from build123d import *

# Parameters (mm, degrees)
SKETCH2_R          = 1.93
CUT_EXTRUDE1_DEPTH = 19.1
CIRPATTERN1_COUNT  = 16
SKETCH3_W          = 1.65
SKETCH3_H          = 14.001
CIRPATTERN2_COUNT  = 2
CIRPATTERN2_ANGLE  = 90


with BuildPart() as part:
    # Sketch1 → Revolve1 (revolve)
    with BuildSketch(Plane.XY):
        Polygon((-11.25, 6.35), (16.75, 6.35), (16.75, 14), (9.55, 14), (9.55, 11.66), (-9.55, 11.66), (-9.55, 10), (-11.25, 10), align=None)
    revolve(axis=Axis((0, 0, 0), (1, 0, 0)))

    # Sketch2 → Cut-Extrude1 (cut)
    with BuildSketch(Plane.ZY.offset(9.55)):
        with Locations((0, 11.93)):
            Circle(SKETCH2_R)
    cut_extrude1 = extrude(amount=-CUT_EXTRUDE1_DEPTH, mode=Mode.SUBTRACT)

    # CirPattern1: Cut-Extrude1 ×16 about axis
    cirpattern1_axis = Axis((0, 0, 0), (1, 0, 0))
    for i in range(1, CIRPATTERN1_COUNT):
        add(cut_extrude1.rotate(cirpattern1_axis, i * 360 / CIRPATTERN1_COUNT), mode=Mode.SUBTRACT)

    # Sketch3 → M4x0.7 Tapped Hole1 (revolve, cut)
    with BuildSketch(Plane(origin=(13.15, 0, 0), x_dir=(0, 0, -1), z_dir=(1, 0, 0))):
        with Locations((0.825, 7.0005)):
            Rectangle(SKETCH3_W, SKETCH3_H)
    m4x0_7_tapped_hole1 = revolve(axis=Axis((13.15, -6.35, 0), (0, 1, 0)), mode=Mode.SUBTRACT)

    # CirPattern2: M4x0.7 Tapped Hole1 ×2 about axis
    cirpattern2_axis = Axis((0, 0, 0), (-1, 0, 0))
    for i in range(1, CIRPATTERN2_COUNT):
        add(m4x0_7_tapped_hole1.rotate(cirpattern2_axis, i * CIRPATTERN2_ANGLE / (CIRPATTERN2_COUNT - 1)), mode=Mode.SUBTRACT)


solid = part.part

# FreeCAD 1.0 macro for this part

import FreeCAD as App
import Part
import Sketcher

V = App.Vector

doc = App.newDocument("Part")
body = doc.addObject("PartDesign::Body", "Body")

# Sketch on XY plane
sketch1 = body.newObject("Sketcher::SketchObject", "Sketch")
sketch1.AttachmentSupport = (doc.getObject("XY_Plane"), [""])
sketch1.MapMode = "FlatFace"
sketch1.addGeometry([
    Part.LineSegment(V(-11.2, 6.3, 0), V(16.8, 6.3, 0)),  # 0
    Part.LineSegment(V(16.8, 6.3, 0), V(16.8, 14, 0)),  # 1
    Part.LineSegment(V(16.8, 14, 0), V(9.6, 14, 0)),  # 2
    Part.LineSegment(V(9.6, 14, 0), V(9.6, 11.7, 0)),  # 3
    Part.LineSegment(V(9.6, 11.7, 0), V(-9.6, 11.7, 0)),  # 4
    Part.LineSegment(V(-9.6, 11.7, 0), V(-9.6, 10, 0)),  # 5
    Part.LineSegment(V(-9.6, 10, 0), V(-11.2, 10, 0)),  # 6
    Part.LineSegment(V(-11.2, 10, 0), V(-11.2, 6.3, 0)),  # 7
], False)
sketch1.addConstraint([
    Sketcher.Constraint("Coincident", 0, 2, 1, 1),
    Sketcher.Constraint("Coincident", 1, 2, 2, 1),
    Sketcher.Constraint("Coincident", 2, 2, 3, 1),
    Sketcher.Constraint("Coincident", 3, 2, 4, 1),
    Sketcher.Constraint("Coincident", 4, 2, 5, 1),
    Sketcher.Constraint("Coincident", 5, 2, 6, 1),
    Sketcher.Constraint("Coincident", 6, 2, 7, 1),
    Sketcher.Constraint("Coincident", 7, 2, 0, 1),
    Sketcher.Constraint("Horizontal", 0),
    Sketcher.Constraint("Vertical", 1),
    Sketcher.Constraint("Horizontal", 2),
    Sketcher.Constraint("Vertical", 3),
    Sketcher.Constraint("Horizontal", 4),
    Sketcher.Constraint("Vertical", 5),
    Sketcher.Constraint("Horizontal", 6),
    Sketcher.Constraint("Vertical", 7),
    Sketcher.Constraint("DistanceX", 0, 1, 0, 2, 28.0),
    Sketcher.Constraint("DistanceX", 2, 2, 2, 1, 7.2),
    Sketcher.Constraint("DistanceX", 4, 2, 4, 1, 19.1),
    Sketcher.Constraint("DistanceY", -1, 1, 1, 2, 14.0),
    Sketcher.Constraint("DistanceY", -1, 1, 5, 2, 10.0),
    Sketcher.Constraint("DistanceY", 1, 1, 1, 2, 7.65),
    Sketcher.Constraint("DistanceY", 3, 2, 3, 1, 2.34),
    Sketcher.Constraint("DistanceX", -1, 1, 0, 2, 16.75),
])
revolution = body.newObject("PartDesign::Revolution", "Revolution")
revolution.Profile = sketch1
revolution.ReferenceAxis = (sketch1, ["H_Axis"])
revolution.Angle = 360

# Sketch on YZ plane
sketch2 = body.newObject("Sketcher::SketchObject", "Sketch001")
sketch2.AttachmentSupport = (doc.getObject("YZ_Plane"), [""])
sketch2.MapMode = "FlatFace"
sketch2.AttachmentOffset = App.Placement(V(0, 0, -9.55), App.Rotation())
sketch2.addGeometry(Part.Circle(V(11.9, 0, 0), V(0, 0, 1), 1.9), False)
sketch2.addConstraint([
    Sketcher.Constraint("PointOnObject", 0, 3, -1),
    Sketcher.Constraint("Diameter", 0, 3.86),
    Sketcher.Constraint("DistanceX", -1, 1, 0, 3, 11.93),
])
pocket1 = body.newObject("PartDesign::Pocket", "Pocket")
pocket1.Profile = sketch2
pocket1.Length = 19.1
pocket1.Reversed = True
doc.recompute()

polarpattern = body.newObject("PartDesign::PolarPattern", "PolarPattern")
polarpattern.Originals = [pocket1]
polarpattern.Axis = (doc.getObject("X_Axis"), [""])
polarpattern.Angle = 360
polarpattern.Occurrences = 16
body.Tip = polarpattern

# Sketch on YZ plane
sketch3 = body.newObject("Sketcher::SketchObject", "Sketch002")
sketch3.AttachmentSupport = (doc.getObject("YZ_Plane"), [""])
sketch3.MapMode = "FlatFace"
sketch3.AttachmentOffset = App.Placement(V(0, 0, 13.15), App.Rotation())
sketch3.addGeometry([
    Part.LineSegment(V(14, 0, 0), V(0, 0, 0)),
    Part.LineSegment(V(0, 0, 0), V(0, -1.6, 0)),
    Part.LineSegment(V(0, -1.6, 0), V(14, -1.6, 0)),
    Part.LineSegment(V(14, -1.6, 0), V(14, 0, 0)),
], False)
sketch3.addConstraint([
    Sketcher.Constraint("Coincident", 0, 2, 1, 1),
    Sketcher.Constraint("Coincident", 1, 2, 2, 1),
    Sketcher.Constraint("Coincident", 2, 2, 3, 1),
    Sketcher.Constraint("Coincident", 3, 2, 0, 1),
    Sketcher.Constraint("Horizontal", 0),
    Sketcher.Constraint("Vertical", 1),
    Sketcher.Constraint("Horizontal", 2),
    Sketcher.Constraint("Vertical", 3),
    Sketcher.Constraint("Coincident", 0, 2, -1, 1),
    Sketcher.Constraint("DistanceY", 1, 2, 1, 1, 1.65),
    Sketcher.Constraint("DistanceX", 0, 2, 0, 1, 14.001),
])
groove = body.newObject("PartDesign::Groove", "Groove")
groove.Profile = sketch3
groove.ReferenceAxis = (sketch3, ["H_Axis"])
groove.Angle = 360
doc.recompute()

polarpattern2 = body.newObject("PartDesign::PolarPattern", "PolarPattern001")
polarpattern2.Originals = [groove]
polarpattern2.Axis = (doc.getObject("X_Axis"), [""])
polarpattern2.Angle = 90
polarpattern2.Occurrences = 2
polarpattern2.Reversed = True
body.Tip = polarpattern2

doc.recompute()
